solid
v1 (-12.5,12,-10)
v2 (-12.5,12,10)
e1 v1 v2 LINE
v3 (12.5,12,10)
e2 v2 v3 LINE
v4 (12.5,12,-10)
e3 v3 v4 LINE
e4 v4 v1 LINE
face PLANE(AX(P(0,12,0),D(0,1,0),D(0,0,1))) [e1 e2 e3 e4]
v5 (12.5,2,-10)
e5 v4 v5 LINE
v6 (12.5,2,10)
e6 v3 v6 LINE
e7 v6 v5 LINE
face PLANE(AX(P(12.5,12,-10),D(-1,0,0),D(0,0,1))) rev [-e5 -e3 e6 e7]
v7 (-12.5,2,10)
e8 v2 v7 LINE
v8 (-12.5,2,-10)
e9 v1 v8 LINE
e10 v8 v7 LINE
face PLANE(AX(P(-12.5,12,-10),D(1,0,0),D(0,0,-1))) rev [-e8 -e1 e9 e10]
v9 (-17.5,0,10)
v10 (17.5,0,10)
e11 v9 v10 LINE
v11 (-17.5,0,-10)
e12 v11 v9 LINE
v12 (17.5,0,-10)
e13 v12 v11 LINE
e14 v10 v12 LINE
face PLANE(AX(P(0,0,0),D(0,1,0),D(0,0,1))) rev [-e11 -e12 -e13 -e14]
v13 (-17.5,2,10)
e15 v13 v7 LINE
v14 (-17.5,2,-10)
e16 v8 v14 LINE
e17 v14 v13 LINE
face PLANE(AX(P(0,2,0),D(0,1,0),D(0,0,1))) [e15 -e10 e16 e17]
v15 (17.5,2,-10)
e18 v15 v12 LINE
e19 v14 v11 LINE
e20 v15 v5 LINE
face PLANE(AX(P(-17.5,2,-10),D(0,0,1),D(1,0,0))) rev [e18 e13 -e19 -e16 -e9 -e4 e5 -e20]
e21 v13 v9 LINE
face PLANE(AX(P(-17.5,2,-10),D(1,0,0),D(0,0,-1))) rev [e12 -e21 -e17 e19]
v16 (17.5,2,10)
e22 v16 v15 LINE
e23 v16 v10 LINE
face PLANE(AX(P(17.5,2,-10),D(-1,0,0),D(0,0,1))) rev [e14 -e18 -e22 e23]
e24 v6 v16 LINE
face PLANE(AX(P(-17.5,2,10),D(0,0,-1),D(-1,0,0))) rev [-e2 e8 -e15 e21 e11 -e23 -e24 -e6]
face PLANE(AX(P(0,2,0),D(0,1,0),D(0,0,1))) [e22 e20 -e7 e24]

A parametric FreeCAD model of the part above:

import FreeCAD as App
import Part
import Sketcher

V = App.Vector

doc = App.newDocument("Part")
body = doc.addObject("PartDesign::Body", "Body")

# Sketch on XZ plane
sketch1 = body.newObject("Sketcher::SketchObject", "Sketch")
sketch1.AttachmentSupport = (doc.getObject("XZ_Plane"), [""])
sketch1.MapMode = "FlatFace"
sketch1.addGeometry(Part.LineSegment(V(-17.5, -10, 0), V(-17.5, 10, 0)), False)
sketch1.addGeometry(Part.LineSegment(V(-17.5, 10, 0), V(17.5, 10, 0)), False)
sketch1.addGeometry(Part.LineSegment(V(17.5, 10, 0), V(17.5, -10, 0)), False)
sketch1.addGeometry(Part.LineSegment(V(17.5, -10, 0), V(-17.5, -10, 0)), False)
sketch1.addConstraint(Sketcher.Constraint("Coincident", 0, 2, 1, 1))
sketch1.addConstraint(Sketcher.Constraint("Coincident", 1, 2, 2, 1))
sketch1.addConstraint(Sketcher.Constraint("Coincident", 2, 2, 3, 1))
sketch1.addConstraint(Sketcher.Constraint("Coincident", 3, 2, 0, 1))
sketch1.addConstraint(Sketcher.Constraint("Vertical", 0))
sketch1.addConstraint(Sketcher.Constraint("Horizontal", 1))
sketch1.addConstraint(Sketcher.Constraint("Vertical", 2))
sketch1.addConstraint(Sketcher.Constraint("Horizontal", 3))
sketch1.addConstraint(Sketcher.Constraint("Symmetric", 0, 2, 2, 2, -1, 1))
sketch1.addConstraint(Sketcher.Constraint("DistanceX", 1, 1, 1, 2, 35.0))
sketch1.addConstraint(Sketcher.Constraint("DistanceY", 0, 1, 0, 2, 20.0))
pad1 = body.newObject("PartDesign::Pad", "Pad")
pad1.Profile = sketch1
pad1.Length = 2
pad1.Reversed = True

# Sketch on XZ plane
sketch2 = body.newObject("Sketcher::SketchObject", "Sketch001")
sketch2.AttachmentSupport = (doc.getObject("XZ_Plane"), [""])
sketch2.MapMode = "FlatFace"
sketch2.AttachmentOffset = App.Placement(V(0, 0, -2), App.Rotation())
sketch2.addGeometry(Part.LineSegment(V(-12.5, -10, 0), V(-12.5, 10, 0)), False)
sketch2.addGeometry(Part.LineSegment(V(-12.5, 10, 0), V(12.5, 10, 0)), False)
sketch2.addGeometry(Part.LineSegment(V(12.5, 10, 0), V(12.5, -10, 0)), False)
sketch2.addGeometry(Part.LineSegment(V(12.5, -10, 0), V(-12.5, -10, 0)), False)
sketch2.addConstraint(Sketcher.Constraint("Coincident", 0, 2, 1, 1))
sketch2.addConstraint(Sketcher.Constraint("Coincident", 1, 2, 2, 1))
sketch2.addConstraint(Sketcher.Constraint("Coincident", 2, 2, 3, 1))
sketch2.addConstraint(Sketcher.Constraint("Coincident", 3, 2, 0, 1))
sketch2.addConstraint(Sketcher.Constraint("Vertical", 0))
sketch2.addConstraint(Sketcher.Constraint("Horizontal", 1))
sketch2.addConstraint(Sketcher.Constraint("Vertical", 2))
sketch2.addConstraint(Sketcher.Constraint("Horizontal", 3))
sketch2.addConstraint(Sketcher.Constraint("Symmetric", 0, 2, 2, 2, -1, 1))
sketch2.addConstraint(Sketcher.Constraint("DistanceX", 1, 1, 1, 2, 25.0))
sketch2.addConstraint(Sketcher.Constraint("DistanceY", 0, 1, 0, 2, 20.0))
pad2 = body.newObject("PartDesign::Pad", "Pad001")
pad2.Profile = sketch2
pad2.Length = 10
pad2.Reversed = True

doc.recompute()
